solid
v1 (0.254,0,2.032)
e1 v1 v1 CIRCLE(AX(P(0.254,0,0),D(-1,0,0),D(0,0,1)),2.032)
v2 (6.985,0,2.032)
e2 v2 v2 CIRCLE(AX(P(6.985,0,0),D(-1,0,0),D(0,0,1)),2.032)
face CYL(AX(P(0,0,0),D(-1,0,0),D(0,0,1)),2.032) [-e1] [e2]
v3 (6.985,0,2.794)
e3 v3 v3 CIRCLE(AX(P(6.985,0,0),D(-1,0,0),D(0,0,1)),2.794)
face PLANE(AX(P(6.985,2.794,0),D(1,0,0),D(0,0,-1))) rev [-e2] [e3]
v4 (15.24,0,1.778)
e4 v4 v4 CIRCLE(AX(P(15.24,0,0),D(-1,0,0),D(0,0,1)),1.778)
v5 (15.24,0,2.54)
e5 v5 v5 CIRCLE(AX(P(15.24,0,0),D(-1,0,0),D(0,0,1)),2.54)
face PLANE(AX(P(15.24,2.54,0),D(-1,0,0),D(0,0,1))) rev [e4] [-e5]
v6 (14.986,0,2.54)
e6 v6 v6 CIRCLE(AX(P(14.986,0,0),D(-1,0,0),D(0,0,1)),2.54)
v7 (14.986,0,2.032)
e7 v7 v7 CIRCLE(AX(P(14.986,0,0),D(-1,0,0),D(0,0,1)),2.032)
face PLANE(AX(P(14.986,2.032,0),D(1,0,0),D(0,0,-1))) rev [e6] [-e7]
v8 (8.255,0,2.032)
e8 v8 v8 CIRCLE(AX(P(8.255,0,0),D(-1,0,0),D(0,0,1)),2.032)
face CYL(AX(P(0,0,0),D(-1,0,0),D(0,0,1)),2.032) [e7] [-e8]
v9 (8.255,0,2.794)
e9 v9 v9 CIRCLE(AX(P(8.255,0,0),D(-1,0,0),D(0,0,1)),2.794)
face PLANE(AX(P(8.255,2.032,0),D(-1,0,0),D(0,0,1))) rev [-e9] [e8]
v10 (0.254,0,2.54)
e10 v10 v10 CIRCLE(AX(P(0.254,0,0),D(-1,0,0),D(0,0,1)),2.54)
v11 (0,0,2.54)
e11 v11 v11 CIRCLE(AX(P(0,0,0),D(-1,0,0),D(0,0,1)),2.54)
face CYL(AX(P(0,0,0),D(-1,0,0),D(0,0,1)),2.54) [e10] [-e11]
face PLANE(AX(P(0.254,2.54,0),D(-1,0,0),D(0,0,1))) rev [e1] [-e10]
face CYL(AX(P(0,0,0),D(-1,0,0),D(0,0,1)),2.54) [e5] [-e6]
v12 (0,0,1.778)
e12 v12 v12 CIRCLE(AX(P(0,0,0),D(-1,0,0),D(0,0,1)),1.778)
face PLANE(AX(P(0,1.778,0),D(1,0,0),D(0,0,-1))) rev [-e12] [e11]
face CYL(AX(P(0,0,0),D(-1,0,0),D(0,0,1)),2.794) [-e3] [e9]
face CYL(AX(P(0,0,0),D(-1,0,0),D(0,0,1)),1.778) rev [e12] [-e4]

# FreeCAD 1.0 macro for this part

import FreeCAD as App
import Part
import Sketcher

V = App.Vector
Q = App.Units.Quantity


def add_polygon(sketch, points):
    """Adds a closed chain of lines whose ends are joined by coincident constraints."""
    first, n = sketch.GeometryCount, len(points)
    for a, b in zip(points, points[1:] + points[:1]):
        sketch.addGeometry(Part.LineSegment(App.Vector(*a, 0), App.Vector(*b, 0)), False)
    for i in range(n):
        sketch.addConstraint(Sketcher.Constraint("Coincident", first + i, 2, first + (i + 1) % n, 1))

doc = App.newDocument("Part")
body = doc.addObject("PartDesign::Body", "Body")

sketch1 = body.newObject("Sketcher::SketchObject", "Sketch")
sketch1.AttachmentSupport = (doc.getObject("XY_Plane"), [""])
sketch1.MapMode = "FlatFace"
add_polygon(sketch1, [(0, 2.54), (0, 1.78), (15.24, 1.78), (15.24, 2.54), (14.99, 2.54), (14.99, 2.03), (8.26, 2.03), (8.26, 2.79), (6.99, 2.79), (6.99, 2.03), (0.25, 2.03), (0.25, 2.54)])
sketch1.addConstraint([
    Sketcher.Constraint("Vertical", 0),
    Sketcher.Constraint("Horizontal", 1),
    Sketcher.Constraint("Vertical", 2),
    Sketcher.Constraint("Horizontal", 3),
    Sketcher.Constraint("Vertical", 4),
    Sketcher.Constraint("Horizontal", 5),
    Sketcher.Constraint("Vertical", 6),
    Sketcher.Constraint("Horizontal", 7),
    Sketcher.Constraint("Vertical", 8),
    Sketcher.Constraint("Horizontal", 9),
    Sketcher.Constraint("Vertical", 10),
    Sketcher.Constraint("Horizontal", 11),
    Sketcher.Constraint("PointOnObject", 0, 2, -2),
    Sketcher.Constraint("Horizontal", 5, 2, 8, 2),
    Sketcher.Constraint("Horizontal", 3, 2, 10, 2),
    Sketcher.Constraint("Equal", 5, 9),
    Sketcher.Constraint("Equal", 3, 11),
    Sketcher.Constraint("Equal", 2, 6),
    Sketcher.Constraint("DistanceX", 1, 1, 1, 2, Q("0.6 in")),
    Sketcher.Constraint("DistanceX", 3, 2, 3, 1, Q("0.01 in")),
    Sketcher.Constraint("DistanceX", 7, 2, 7, 1, Q("0.05 in")),
    Sketcher.Constraint("DistanceY", 0, 2, 0, 1, Q("0.03 in")),
    Sketcher.Constraint("DistanceY", 4, 2, 4, 1, Q("0.02 in")),
    Sketcher.Constraint("DistanceY", -1, 1, 2, 2, Q("0.1 in")),
])
revolution = body.newObject("PartDesign::Revolution", "Revolution")
revolution.Profile = sketch1
revolution.ReferenceAxis = (sketch1, ["H_Axis"])
revolution.Angle = 360

doc.recompute()
